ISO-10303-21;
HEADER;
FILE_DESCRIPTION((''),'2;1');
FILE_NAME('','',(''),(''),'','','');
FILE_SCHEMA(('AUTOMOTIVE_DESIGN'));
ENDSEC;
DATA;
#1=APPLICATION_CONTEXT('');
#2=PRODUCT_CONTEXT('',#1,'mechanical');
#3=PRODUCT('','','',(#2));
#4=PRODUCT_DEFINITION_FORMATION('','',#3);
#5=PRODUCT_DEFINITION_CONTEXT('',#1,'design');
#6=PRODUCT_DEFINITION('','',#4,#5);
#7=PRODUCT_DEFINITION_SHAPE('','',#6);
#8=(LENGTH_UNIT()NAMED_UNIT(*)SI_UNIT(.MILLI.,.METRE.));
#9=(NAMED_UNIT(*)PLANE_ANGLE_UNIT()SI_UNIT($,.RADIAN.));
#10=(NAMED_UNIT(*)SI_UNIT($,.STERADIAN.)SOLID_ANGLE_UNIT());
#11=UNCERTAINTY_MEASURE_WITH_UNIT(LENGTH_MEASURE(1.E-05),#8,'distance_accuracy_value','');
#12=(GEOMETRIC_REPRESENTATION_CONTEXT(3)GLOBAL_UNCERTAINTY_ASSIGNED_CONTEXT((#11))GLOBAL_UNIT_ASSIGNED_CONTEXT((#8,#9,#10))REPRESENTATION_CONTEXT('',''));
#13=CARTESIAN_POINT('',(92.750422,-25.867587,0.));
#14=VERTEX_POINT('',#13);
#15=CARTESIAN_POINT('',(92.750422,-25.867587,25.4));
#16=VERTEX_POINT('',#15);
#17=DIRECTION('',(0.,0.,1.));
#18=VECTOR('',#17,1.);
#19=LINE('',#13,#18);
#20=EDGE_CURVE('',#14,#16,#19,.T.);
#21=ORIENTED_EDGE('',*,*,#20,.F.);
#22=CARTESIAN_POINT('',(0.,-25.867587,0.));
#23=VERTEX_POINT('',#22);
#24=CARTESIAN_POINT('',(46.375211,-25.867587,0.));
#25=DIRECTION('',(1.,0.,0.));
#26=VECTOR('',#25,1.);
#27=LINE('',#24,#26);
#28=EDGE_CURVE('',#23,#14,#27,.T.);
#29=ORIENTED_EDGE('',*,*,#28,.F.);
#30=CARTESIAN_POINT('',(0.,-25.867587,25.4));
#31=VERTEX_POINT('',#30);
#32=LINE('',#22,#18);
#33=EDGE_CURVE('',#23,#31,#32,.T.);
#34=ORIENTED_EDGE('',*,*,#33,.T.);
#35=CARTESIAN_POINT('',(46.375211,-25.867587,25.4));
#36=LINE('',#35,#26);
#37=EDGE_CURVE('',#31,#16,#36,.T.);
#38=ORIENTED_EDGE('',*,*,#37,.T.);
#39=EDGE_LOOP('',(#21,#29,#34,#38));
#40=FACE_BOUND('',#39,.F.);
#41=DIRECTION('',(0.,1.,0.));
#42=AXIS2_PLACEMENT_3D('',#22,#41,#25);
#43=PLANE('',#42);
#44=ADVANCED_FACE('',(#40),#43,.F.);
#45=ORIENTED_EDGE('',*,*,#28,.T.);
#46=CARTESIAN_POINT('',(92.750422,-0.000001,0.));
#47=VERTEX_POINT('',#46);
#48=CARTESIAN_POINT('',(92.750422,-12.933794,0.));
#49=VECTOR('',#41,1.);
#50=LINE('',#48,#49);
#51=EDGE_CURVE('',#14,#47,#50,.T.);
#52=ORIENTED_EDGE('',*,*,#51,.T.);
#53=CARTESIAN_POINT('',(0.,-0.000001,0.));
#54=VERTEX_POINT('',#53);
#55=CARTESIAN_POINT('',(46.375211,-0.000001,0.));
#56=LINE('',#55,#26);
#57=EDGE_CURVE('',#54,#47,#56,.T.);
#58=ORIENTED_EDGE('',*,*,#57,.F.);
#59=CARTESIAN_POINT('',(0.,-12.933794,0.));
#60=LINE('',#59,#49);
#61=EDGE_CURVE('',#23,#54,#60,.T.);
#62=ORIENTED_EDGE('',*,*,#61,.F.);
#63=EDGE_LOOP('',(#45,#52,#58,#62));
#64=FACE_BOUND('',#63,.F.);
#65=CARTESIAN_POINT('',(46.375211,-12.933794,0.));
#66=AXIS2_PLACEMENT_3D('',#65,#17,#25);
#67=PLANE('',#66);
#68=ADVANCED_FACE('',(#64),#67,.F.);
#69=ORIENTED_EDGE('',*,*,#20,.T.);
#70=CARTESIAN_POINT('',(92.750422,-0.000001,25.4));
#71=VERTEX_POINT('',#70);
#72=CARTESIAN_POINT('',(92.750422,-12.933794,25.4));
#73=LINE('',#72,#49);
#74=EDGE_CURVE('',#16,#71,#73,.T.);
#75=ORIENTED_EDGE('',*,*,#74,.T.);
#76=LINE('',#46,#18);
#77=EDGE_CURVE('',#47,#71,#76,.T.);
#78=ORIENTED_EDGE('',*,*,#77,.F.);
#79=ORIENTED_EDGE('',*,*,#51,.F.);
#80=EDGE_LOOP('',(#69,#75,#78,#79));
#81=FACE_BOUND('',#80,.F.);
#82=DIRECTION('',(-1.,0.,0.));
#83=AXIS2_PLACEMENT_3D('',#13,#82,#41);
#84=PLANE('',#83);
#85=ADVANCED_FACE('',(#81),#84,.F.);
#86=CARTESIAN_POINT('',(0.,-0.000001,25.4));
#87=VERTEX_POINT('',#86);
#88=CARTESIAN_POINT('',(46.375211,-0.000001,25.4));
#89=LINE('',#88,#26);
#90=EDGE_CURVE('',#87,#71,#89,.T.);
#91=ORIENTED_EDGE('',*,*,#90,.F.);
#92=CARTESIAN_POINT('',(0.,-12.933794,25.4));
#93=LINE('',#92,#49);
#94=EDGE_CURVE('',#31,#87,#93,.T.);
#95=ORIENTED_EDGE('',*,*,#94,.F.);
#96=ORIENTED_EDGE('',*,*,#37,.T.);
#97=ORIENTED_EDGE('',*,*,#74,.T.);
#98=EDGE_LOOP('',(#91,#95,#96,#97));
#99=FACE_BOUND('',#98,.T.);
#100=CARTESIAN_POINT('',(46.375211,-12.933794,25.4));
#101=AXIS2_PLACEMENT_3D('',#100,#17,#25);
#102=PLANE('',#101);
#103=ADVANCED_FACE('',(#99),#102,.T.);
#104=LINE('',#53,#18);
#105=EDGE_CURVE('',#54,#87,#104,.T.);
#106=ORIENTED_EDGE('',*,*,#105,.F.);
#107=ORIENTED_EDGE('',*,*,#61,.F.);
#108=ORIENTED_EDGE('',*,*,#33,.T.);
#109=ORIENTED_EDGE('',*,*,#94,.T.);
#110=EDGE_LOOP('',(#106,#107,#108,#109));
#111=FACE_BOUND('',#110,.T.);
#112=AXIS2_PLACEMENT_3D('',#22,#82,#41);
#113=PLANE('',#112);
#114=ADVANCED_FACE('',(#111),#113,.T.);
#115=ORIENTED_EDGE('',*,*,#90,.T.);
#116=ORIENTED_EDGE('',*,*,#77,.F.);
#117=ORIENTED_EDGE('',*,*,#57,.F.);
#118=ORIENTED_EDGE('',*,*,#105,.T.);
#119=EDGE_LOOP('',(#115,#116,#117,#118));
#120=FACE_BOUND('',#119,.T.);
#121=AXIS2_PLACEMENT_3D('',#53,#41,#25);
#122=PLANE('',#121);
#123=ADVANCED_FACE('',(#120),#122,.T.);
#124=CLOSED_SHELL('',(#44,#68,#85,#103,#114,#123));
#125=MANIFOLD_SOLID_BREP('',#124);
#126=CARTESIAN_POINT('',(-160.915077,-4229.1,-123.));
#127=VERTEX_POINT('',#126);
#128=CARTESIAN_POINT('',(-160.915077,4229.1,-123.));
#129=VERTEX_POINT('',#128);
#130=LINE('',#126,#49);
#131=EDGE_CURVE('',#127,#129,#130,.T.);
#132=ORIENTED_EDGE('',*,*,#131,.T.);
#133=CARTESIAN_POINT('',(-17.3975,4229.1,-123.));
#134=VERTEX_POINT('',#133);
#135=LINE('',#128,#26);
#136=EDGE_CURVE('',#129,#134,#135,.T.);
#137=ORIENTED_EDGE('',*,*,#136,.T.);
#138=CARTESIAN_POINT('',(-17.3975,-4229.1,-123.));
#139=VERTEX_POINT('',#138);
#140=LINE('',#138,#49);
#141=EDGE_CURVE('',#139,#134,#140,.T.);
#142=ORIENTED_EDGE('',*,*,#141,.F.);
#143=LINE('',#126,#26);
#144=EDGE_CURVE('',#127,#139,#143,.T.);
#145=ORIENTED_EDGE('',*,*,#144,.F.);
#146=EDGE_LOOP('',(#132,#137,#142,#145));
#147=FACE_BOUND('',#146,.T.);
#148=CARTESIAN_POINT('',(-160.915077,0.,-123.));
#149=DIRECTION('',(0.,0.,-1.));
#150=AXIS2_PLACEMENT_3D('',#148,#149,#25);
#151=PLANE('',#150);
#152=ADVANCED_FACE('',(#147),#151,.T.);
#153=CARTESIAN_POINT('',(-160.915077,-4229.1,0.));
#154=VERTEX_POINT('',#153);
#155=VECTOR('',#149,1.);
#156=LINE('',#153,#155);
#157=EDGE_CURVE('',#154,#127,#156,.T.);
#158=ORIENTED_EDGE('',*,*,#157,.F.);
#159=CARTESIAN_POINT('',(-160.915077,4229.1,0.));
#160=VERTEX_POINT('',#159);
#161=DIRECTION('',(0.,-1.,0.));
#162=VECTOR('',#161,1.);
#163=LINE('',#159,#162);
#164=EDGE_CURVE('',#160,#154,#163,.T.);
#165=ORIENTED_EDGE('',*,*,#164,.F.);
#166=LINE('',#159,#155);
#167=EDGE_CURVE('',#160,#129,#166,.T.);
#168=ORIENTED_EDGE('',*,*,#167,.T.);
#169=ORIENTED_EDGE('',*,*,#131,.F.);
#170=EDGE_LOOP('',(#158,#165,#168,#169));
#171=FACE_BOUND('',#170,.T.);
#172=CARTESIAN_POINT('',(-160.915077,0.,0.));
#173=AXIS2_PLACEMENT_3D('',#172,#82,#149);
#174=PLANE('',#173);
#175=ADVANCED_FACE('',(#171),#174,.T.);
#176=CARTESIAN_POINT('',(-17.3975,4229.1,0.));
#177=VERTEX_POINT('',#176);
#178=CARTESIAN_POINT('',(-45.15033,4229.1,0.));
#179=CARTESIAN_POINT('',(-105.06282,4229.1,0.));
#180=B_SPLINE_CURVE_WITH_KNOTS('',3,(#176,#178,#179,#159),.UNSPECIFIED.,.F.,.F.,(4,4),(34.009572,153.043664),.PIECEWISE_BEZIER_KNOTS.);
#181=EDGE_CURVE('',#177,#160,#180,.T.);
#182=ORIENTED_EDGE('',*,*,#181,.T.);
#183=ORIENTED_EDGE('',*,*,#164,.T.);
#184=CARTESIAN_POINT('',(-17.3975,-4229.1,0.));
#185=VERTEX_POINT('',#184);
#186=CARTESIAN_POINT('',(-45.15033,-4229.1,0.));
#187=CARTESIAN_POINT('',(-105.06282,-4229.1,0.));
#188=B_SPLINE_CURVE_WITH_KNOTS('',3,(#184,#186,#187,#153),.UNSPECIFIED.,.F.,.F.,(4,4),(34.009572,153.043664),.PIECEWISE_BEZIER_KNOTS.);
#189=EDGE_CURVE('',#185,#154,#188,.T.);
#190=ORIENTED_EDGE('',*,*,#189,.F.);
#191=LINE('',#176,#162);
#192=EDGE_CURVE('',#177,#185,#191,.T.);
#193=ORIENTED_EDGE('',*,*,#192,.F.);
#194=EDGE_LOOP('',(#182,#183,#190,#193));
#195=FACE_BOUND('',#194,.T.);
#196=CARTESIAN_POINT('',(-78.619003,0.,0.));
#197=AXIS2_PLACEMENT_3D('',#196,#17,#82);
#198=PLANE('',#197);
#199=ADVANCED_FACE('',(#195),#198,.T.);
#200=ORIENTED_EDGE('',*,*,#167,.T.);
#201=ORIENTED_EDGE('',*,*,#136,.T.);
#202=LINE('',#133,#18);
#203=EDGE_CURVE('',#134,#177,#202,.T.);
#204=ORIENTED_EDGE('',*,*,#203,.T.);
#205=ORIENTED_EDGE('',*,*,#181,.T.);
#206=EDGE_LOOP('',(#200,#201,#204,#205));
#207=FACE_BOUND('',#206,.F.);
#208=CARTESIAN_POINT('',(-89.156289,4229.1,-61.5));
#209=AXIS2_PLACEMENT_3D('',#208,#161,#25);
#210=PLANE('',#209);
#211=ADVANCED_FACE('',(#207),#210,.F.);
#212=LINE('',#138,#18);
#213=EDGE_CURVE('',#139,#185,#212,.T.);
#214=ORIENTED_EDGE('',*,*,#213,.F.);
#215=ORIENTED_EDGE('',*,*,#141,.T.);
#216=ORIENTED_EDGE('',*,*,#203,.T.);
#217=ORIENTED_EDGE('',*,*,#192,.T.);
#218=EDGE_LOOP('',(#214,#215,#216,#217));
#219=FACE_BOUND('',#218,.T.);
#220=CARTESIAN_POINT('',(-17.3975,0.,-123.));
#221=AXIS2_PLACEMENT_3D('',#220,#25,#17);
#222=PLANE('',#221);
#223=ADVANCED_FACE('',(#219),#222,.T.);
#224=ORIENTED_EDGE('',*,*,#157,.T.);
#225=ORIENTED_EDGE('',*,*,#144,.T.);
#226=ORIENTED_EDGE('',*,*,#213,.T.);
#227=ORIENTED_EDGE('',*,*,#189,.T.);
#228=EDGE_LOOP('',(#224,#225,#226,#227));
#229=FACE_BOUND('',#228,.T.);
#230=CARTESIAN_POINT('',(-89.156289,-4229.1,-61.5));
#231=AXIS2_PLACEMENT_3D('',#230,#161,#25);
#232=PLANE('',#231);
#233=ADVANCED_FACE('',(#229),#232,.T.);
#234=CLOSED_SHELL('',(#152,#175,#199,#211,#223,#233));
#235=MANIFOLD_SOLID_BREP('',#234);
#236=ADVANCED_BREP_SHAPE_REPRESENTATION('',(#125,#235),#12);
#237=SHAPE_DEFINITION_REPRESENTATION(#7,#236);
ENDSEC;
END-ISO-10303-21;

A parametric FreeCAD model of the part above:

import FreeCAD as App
import Part
import Sketcher


def add_polygon(sketch, points):
    """Adds a closed chain of lines whose ends are joined by coincident constraints."""
    first, n = sketch.GeometryCount, len(points)
    for a, b in zip(points, points[1:] + points[:1]):
        sketch.addGeometry(Part.LineSegment(App.Vector(*a, 0), App.Vector(*b, 0)), False)
    for i in range(n):
        sketch.addConstraint(Sketcher.Constraint("Coincident", first + i, 2, first + (i + 1) % n, 1))

doc = App.newDocument("Part")
params = doc.addObject("Spreadsheet::Sheet", "Params")
for row, (alias, value) in enumerate([
    ("pad1_length", "333 in"),
    ("pad2_length", "1 in"),
], start=1):
    params.set(f"A{row}", alias)
    params.set(f"B{row}", "=" + value)
    params.setAlias(f"B{row}", alias)

body = doc.addObject("PartDesign::Body", "Body")

sketch1 = body.newObject("Sketcher::SketchObject", "Sketch")
sketch1.AttachmentSupport = (doc.getObject("XZ_Plane"), [""])
sketch1.MapMode = "FlatFace"
sketch1.addGeometry(Part.LineSegment(App.Vector(-17.3975, -123, 0), App.Vector(-17.3975, 0, 0)), False)
sketch1.addGeometry(Part.BSplineCurve([App.Vector(-17.3975, 0, 0), App.Vector(-45.15033, 0, 0), App.Vector(-105.06282, 0, 0), App.Vector(-160.915077, 0, 0)], [4, 4], [34.009572, 153.043664], False, 3, [1, 1, 1, 1], False), False)
sketch1.addGeometry(Part.LineSegment(App.Vector(-160.915077, 0, 0), App.Vector(-160.915077, -123, 0)), False)
sketch1.addGeometry(Part.LineSegment(App.Vector(-160.915077, -123, 0), App.Vector(-17.3975, -123, 0)), False)
sketch1.addConstraint(Sketcher.Constraint("Block", 1))
sketch1.addConstraint(Sketcher.Constraint("Coincident", 0, 2, 1, 1))
sketch1.addConstraint(Sketcher.Constraint("Coincident", 1, 2, 2, 1))
sketch1.addConstraint(Sketcher.Constraint("Coincident", 2, 2, 3, 1))
sketch1.addConstraint(Sketcher.Constraint("Coincident", 3, 2, 0, 1))
sketch1.addConstraint(Sketcher.Constraint("Vertical", 0))
sketch1.addConstraint(Sketcher.Constraint("Vertical", 2))
sketch1.addConstraint(Sketcher.Constraint("Horizontal", 3))
sketch1.addConstraint(Sketcher.Constraint("DistanceY", 0, 1, 0, 2, 123.0))
pad1 = body.newObject("PartDesign::Pad", "Pad")
pad1.Profile = sketch1
pad1.setExpression("Length", "Params.pad1_length")
pad1.Midplane = True
body2 = doc.addObject("PartDesign::Body", "Body001")

sketch2 = body2.newObject("Sketcher::SketchObject", "Sketch001")
sketch2.AttachmentSupport = (doc.getObject("XY_Plane001"), [""])
sketch2.MapMode = "FlatFace"
add_polygon(sketch2, [(0, 0), (0, -26), (93, -26), (93, 0)])
sketch2.addConstraint(Sketcher.Constraint("Vertical", 0))
sketch2.addConstraint(Sketcher.Constraint("Horizontal", 1))
sketch2.addConstraint(Sketcher.Constraint("Vertical", 2))
sketch2.addConstraint(Sketcher.Constraint("Horizontal", 3))
sketch2.addConstraint(Sketcher.Constraint("Coincident", 3, 2, -1, 1))
sketch2.addConstraint(Sketcher.Constraint("DistanceX", 1, 1, 1, 2, 92.750423))
sketch2.addConstraint(Sketcher.Constraint("DistanceY", 0, 2, 0, 1, 25.867587))
pad2 = body2.newObject("PartDesign::Pad", "Pad001")
pad2.Profile = sketch2
pad2.setExpression("Length", "Params.pad2_length")

doc.recompute()
